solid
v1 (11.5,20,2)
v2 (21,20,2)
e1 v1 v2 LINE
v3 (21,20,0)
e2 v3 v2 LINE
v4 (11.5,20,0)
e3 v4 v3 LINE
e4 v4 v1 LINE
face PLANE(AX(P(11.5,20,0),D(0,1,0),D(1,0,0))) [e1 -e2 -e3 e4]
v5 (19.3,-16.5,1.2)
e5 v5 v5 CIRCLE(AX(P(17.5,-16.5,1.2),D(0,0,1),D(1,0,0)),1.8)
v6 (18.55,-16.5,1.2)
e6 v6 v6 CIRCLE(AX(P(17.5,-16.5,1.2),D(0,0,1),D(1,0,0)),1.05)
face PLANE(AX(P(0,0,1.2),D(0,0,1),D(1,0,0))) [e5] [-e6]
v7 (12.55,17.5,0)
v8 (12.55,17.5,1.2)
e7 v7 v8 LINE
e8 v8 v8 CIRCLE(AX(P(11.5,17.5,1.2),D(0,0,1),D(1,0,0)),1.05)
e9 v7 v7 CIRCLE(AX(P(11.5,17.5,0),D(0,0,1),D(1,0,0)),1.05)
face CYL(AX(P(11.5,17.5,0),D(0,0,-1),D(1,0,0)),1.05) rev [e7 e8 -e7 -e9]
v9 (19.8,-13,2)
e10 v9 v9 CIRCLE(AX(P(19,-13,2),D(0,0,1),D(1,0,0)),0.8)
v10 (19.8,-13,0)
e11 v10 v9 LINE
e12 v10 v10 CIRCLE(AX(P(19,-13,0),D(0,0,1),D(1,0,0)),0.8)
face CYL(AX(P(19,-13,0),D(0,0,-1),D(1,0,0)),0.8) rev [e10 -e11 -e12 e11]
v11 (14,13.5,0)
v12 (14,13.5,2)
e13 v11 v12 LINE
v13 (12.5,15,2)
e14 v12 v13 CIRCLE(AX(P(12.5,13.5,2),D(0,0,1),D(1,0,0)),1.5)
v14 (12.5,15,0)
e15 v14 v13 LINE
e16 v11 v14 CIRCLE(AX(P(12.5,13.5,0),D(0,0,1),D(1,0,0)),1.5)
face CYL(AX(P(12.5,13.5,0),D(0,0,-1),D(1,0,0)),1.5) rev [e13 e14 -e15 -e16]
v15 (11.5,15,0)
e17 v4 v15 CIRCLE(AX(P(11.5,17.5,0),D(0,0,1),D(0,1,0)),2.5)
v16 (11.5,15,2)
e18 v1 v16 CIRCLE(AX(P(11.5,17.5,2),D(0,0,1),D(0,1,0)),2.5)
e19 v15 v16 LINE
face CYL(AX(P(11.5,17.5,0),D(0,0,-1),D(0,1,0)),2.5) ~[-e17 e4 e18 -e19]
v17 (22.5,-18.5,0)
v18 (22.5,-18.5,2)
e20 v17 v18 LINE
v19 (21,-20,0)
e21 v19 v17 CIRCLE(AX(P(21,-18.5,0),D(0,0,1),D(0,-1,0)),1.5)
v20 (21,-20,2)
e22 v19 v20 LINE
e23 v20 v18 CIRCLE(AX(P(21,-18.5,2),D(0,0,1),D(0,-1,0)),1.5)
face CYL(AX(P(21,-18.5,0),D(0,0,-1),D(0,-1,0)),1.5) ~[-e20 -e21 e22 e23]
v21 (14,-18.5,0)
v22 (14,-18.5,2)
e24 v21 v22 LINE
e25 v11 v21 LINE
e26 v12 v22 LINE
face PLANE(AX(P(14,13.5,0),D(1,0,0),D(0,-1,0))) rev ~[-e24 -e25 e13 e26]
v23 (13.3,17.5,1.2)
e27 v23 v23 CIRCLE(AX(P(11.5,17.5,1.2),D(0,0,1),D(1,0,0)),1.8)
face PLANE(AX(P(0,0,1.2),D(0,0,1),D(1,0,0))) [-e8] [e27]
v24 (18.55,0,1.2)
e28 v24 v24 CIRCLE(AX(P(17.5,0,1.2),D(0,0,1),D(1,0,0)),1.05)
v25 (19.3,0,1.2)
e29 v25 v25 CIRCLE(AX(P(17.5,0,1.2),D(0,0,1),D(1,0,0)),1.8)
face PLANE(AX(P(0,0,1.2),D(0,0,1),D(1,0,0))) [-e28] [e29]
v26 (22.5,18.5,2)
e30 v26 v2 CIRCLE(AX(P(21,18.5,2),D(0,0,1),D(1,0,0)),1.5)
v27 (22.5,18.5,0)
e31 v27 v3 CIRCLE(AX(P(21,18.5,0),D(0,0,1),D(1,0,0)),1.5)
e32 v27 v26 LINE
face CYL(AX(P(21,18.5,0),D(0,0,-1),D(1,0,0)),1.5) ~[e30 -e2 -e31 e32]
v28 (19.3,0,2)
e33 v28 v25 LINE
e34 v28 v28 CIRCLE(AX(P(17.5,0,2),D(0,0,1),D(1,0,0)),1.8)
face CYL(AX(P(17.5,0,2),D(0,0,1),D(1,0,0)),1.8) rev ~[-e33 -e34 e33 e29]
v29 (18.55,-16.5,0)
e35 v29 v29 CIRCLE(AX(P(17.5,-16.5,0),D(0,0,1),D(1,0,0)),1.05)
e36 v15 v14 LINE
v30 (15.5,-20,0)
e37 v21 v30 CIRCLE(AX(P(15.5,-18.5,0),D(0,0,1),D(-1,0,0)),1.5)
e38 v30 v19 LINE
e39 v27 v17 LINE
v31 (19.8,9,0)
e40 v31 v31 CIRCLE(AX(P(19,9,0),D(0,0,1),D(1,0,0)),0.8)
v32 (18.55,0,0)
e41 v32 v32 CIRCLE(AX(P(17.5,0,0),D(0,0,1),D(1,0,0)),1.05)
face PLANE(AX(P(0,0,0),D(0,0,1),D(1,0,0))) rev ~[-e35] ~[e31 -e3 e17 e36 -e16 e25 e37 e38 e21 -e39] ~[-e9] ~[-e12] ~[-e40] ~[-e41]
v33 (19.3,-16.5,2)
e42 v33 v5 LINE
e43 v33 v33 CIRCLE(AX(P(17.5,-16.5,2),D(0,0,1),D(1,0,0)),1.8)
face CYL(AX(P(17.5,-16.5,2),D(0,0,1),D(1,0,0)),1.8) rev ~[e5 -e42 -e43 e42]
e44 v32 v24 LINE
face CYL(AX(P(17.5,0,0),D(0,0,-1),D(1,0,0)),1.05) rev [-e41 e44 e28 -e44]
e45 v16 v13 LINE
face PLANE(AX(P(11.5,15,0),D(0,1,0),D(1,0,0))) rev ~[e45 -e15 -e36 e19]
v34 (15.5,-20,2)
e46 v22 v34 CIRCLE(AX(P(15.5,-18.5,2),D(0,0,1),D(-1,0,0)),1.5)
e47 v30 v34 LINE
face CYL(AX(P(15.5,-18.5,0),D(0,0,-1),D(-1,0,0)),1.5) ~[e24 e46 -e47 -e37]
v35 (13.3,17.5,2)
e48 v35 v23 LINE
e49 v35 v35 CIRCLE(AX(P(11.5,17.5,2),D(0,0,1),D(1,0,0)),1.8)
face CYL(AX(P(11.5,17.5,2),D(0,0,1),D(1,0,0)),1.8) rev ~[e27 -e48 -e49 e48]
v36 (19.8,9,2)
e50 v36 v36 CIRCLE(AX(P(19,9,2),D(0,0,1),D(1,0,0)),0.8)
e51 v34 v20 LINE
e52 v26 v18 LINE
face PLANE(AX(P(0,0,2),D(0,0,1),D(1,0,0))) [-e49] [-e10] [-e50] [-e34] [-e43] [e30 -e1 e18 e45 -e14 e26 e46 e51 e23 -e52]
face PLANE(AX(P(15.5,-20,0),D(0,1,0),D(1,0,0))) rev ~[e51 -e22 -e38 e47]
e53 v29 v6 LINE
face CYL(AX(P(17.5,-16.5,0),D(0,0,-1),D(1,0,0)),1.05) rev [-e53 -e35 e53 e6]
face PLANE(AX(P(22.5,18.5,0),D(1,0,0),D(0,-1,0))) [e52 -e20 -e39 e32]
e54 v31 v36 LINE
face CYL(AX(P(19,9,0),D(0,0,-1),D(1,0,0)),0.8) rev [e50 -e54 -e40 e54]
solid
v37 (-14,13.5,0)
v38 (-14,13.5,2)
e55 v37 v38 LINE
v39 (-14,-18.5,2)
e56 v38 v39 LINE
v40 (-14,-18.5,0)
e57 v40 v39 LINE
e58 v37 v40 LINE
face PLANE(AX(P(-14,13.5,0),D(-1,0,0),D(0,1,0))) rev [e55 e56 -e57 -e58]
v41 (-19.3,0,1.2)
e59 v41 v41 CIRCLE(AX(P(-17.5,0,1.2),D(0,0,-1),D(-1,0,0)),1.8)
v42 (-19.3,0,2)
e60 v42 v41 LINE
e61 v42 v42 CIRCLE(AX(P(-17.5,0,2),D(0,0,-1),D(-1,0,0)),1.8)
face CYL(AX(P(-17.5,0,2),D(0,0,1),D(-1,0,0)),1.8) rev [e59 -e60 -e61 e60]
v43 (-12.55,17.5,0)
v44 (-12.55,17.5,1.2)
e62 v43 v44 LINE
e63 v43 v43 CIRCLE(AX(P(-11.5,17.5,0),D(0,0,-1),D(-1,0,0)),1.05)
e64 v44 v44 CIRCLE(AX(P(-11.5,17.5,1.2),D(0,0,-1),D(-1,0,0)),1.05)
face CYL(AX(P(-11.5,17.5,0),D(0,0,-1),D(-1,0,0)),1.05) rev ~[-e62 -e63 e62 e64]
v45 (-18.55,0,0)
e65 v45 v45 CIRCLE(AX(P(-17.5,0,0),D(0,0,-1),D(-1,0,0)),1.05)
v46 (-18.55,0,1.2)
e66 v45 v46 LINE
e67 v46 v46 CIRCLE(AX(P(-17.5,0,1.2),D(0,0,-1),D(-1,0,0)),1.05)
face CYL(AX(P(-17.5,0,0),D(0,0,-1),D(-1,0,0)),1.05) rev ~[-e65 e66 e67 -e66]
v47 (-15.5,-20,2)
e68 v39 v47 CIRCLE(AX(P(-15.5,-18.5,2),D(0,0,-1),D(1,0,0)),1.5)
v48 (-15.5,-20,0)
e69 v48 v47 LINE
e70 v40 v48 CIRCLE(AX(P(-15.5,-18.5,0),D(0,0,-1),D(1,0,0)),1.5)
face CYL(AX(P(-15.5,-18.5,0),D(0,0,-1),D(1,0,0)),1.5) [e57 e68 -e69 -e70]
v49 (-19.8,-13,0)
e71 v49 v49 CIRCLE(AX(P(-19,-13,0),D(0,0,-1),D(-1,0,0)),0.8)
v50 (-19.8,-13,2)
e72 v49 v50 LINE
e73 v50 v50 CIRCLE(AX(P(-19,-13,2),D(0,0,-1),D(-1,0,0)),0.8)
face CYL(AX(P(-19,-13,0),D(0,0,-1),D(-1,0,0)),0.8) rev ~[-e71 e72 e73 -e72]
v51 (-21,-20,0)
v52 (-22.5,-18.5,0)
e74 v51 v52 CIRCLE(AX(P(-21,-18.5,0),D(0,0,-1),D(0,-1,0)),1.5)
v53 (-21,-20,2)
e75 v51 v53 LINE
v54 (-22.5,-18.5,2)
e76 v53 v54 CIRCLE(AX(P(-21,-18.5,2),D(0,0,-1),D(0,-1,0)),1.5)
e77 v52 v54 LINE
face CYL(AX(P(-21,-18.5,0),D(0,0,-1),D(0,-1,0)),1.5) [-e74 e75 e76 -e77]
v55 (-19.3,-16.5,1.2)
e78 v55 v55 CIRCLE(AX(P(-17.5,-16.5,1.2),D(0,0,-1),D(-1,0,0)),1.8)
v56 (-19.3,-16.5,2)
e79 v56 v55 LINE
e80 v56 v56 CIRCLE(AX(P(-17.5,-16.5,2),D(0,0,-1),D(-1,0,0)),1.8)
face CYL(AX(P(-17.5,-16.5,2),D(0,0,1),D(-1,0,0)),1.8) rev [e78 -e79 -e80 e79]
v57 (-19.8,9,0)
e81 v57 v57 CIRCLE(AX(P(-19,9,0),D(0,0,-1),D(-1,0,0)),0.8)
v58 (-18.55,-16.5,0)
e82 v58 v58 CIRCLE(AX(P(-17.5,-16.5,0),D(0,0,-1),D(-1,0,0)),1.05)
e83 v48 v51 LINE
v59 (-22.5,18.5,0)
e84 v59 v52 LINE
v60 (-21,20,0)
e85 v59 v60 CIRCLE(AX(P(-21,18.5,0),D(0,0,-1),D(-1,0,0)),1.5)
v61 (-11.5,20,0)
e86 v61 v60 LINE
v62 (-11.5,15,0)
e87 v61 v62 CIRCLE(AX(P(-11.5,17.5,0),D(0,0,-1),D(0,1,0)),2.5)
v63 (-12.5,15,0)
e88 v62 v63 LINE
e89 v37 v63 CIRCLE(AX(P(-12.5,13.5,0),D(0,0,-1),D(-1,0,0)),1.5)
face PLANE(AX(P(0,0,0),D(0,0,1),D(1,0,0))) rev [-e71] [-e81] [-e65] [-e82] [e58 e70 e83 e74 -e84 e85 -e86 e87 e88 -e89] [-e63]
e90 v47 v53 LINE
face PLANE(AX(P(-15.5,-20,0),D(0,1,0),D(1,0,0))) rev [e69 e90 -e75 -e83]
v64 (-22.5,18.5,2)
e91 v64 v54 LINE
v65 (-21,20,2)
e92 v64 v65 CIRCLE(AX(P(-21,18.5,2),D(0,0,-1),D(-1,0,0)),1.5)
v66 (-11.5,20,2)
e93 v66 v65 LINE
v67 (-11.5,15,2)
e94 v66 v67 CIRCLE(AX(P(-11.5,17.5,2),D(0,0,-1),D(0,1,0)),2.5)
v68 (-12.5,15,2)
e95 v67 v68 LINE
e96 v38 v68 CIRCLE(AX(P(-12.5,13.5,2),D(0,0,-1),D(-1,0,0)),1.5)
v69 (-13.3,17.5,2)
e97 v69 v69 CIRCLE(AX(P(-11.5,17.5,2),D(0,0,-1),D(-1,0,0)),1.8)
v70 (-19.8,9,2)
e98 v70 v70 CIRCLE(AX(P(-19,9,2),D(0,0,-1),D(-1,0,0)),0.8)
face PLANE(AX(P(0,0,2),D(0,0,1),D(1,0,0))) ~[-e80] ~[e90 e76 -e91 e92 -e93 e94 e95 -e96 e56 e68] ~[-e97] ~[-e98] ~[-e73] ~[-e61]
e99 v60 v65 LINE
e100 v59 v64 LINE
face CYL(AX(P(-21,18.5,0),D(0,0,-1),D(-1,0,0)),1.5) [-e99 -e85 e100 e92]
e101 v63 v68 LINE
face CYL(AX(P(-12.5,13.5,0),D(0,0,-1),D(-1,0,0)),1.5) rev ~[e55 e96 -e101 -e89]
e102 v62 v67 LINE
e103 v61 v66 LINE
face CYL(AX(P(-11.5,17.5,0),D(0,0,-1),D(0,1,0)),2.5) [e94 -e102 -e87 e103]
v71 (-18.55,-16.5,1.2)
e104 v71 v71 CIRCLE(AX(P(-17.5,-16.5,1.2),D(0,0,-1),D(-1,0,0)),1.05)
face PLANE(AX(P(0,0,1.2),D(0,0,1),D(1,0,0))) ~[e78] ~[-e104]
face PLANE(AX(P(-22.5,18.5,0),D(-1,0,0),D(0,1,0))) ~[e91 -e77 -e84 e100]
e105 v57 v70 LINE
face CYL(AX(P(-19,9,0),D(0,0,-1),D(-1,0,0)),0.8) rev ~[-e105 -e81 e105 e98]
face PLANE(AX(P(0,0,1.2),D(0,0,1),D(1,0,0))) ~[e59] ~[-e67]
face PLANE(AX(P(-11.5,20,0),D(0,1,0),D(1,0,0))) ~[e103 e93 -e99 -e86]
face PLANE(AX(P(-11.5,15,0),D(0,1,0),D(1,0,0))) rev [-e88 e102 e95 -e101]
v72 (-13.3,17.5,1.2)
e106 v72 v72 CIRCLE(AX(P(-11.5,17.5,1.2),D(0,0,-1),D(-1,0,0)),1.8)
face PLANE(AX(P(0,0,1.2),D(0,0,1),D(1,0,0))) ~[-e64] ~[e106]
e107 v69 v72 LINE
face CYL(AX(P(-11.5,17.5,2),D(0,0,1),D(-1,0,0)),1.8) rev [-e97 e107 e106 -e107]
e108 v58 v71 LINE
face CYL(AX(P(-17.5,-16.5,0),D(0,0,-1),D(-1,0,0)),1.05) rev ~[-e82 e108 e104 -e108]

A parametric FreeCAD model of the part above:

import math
import FreeCAD as App
import Part
import Sketcher
from FreeCAD import Vector
Q = App.Units.Quantity

doc = App.newDocument("Part")
params = doc.addObject("Spreadsheet::Sheet", "Params")
for row, (alias, value) in enumerate([
    ("sketch1_diameter", "2.1 mm"),
    ("sketch1_diameter2", "1.6 mm"),
    ("sketch1_radius", "1.5 mm"),
    ("sketch1_radius2", "2.5 mm"),
    ("pad1_length", "2 mm"),
    ("sketch2_diameter", "3.6 mm"),
    ("sketch2_diameter2", "2.1 mm"),
    ("pocket1_length", "0.8 mm"),
], start=1):
    params.set(f"A{row}", alias)
    params.set(f"B{row}", "=" + value)
    params.setAlias(f"B{row}", alias)

body = doc.addObject("PartDesign::Body", "Body")
body.AllowCompound = True

# Sketch on XY plane
sketch1 = doc.addObject("Sketcher::SketchObject", "Sketch")
body.addObject(sketch1)
sketch1.AttachmentSupport = (doc.XY_Plane, [""])
sketch1.MapMode = "FlatFace"
sketch1.addGeometry(Part.LineSegment(Vector(22.5, -18.5, 0), Vector(22.5, 18.5, 0)), False)
sketch1.addGeometry(Part.ArcOfCircle(Part.Circle(Vector(21, 18.5, 0), Vector(0, 0, 1), 1.5), math.radians(0), math.radians(90)), False)
sketch1.addGeometry(Part.LineSegment(Vector(21, 20, 0), Vector(11.5, 20, 0)), False)
sketch1.addGeometry(Part.ArcOfCircle(Part.Circle(Vector(11.5, 17.5, 0), Vector(0, 0, 1), 2.5), math.radians(90), math.radians(270)), False)
sketch1.addGeometry(Part.LineSegment(Vector(11.5, 15, 0), Vector(12.5, 15, 0)), False)
sketch1.addGeometry(Part.ArcOfCircle(Part.Circle(Vector(12.5, 13.5, 0), Vector(0, 0, 1), 1.5), math.radians(0), math.radians(90)), False)
sketch1.addGeometry(Part.LineSegment(Vector(14, 13.5, 0), Vector(14, -18.5, 0)), False)
sketch1.addGeometry(Part.ArcOfCircle(Part.Circle(Vector(15.5, -18.5, 0), Vector(0, 0, 1), 1.5), math.radians(180), math.radians(270)), False)
sketch1.addGeometry(Part.LineSegment(Vector(15.5, -20, 0), Vector(21, -20, 0)), False)
sketch1.addGeometry(Part.ArcOfCircle(Part.Circle(Vector(21, -18.5, 0), Vector(0, 0, 1), 1.5), math.radians(-90), math.radians(0)), False)
sketch1.addGeometry(Part.Circle(Vector(17.5, -16.5, 0), Vector(0, 0, 1), 1.05), False)
sketch1.addGeometry(Part.Circle(Vector(19, -13, 0), Vector(0, 0, 1), 0.8), False)
sketch1.addGeometry(Part.Circle(Vector(11.5, 17.5, 0), Vector(0, 0, 1), 1.05), False)
sketch1.addGeometry(Part.Circle(Vector(17.5, 0, 0), Vector(0, 0, 1), 1.05), False)
sketch1.addGeometry(Part.Circle(Vector(19, 9, 0), Vector(0, 0, 1), 0.8), False)
sketch1.addConstraint(Sketcher.Constraint("Tangent", 0, 2, 1, 1))
sketch1.addConstraint(Sketcher.Constraint("Tangent", 1, 2, 2, 1))
sketch1.addConstraint(Sketcher.Constraint("Tangent", 2, 2, 3, 1))
sketch1.addConstraint(Sketcher.Constraint("Tangent", 3, 2, 4, 1))
sketch1.addConstraint(Sketcher.Constraint("Tangent", 4, 2, 5, 2))
sketch1.addConstraint(Sketcher.Constraint("Tangent", 5, 1, 6, 1))
sketch1.addConstraint(Sketcher.Constraint("Tangent", 6, 2, 7, 1))
sketch1.addConstraint(Sketcher.Constraint("Tangent", 7, 2, 8, 1))
sketch1.addConstraint(Sketcher.Constraint("Tangent", 8, 2, 9, 1))
sketch1.addConstraint(Sketcher.Constraint("Tangent", 9, 2, 0, 1))
sketch1.addConstraint(Sketcher.Constraint("Vertical", 0))
sketch1.addConstraint(Sketcher.Constraint("Horizontal", 2))
sketch1.addConstraint(Sketcher.Constraint("Horizontal", 4))
sketch1.addConstraint(Sketcher.Constraint("Vertical", 6))
sketch1.addConstraint(Sketcher.Constraint("Horizontal", 8))
sketch1.addConstraint(Sketcher.Constraint("Coincident", 12, 3, 3, 3))
sketch1.addConstraint(Sketcher.Constraint("Equal", 1, 5))
sketch1.addConstraint(Sketcher.Constraint("Equal", 5, 7))
sketch1.addConstraint(Sketcher.Constraint("Equal", 7, 9))
sketch1.addConstraint(Sketcher.Constraint("Equal", 10, 12))
sketch1.addConstraint(Sketcher.Constraint("Equal", 12, 13))
sketch1.addConstraint(Sketcher.Constraint("Equal", 11, 14))
sketch1.addConstraint(Sketcher.Constraint("PointOnObject", 13, 3, -1))
sketch1.addConstraint(Sketcher.Constraint("Vertical", 10, 3, 13, 3))
sketch1.addConstraint(Sketcher.Constraint("Vertical", 11, 3, 14, 3))
sketch1.addConstraint(Sketcher.Constraint("Diameter", 10, Q("2.1 mm")))
sketch1.addConstraint(Sketcher.Constraint("Diameter", 11, Q("1.6 mm")))
sketch1.addConstraint(Sketcher.Constraint("Radius", 1, Q("1.5 mm")))
sketch1.addConstraint(Sketcher.Constraint("Radius", 3, Q("2.5 mm")))
sketch1.addConstraint(Sketcher.Constraint("DistanceY", -1, 1, 14, 3, Q("9 mm")))
sketch1.addConstraint(Sketcher.Constraint("DistanceX", 3, 3, 7, 3, Q("4 mm")))
sketch1.addConstraint(Sketcher.Constraint("DistanceY", 10, 3, 1, 3, Q("35 mm")))
sketch1.addConstraint(Sketcher.Constraint("DistanceX", 10, 3, 9, 3, Q("3.5 mm")))
sketch1.addConstraint(Sketcher.Constraint("DistanceX", 10, 3, 11, 3, Q("1.5 mm")))
sketch1.addConstraint(Sketcher.Constraint("DistanceY", 10, 3, 11, 3, Q("3.5 mm")))
sketch1.addConstraint(Sketcher.Constraint("DistanceX", 7, 3, 11, 3, Q("3.5 mm")))
sketch1.addConstraint(Sketcher.Constraint("DistanceY", 7, 2, 10, 3, Q("3.5 mm")))
sketch1.addConstraint(Sketcher.Constraint("DistanceX", -1, 1, 1, 3, Q("21 mm")))
sketch1.addConstraint(Sketcher.Constraint("DistanceY", 11, 3, -1, 1, Q("13 mm")))
sketch1.setExpression("Constraints[25]", "Params.sketch1_diameter")
sketch1.setExpression("Constraints[26]", "Params.sketch1_diameter2")
sketch1.setExpression("Constraints[27]", "Params.sketch1_radius")
sketch1.setExpression("Constraints[28]", "Params.sketch1_radius2")
pad1 = doc.addObject("PartDesign::Pad", "Pad")
body.addObject(pad1)
pad1.Profile = sketch1
pad1.setExpression("Length", "Params.pad1_length")

# Sketch on XY plane
sketch2 = doc.addObject("Sketcher::SketchObject", "Sketch001")
body.addObject(sketch2)
sketch2.AttachmentSupport = (doc.XY_Plane, [""])
sketch2.MapMode = "FlatFace"
sketch2.AttachmentOffset = App.Placement(Vector(0, 0, 2), App.Rotation())
sketch2.addGeometry(Part.Circle(Vector(17.5, 0, 0), Vector(0, 0, 1), 1.8), False)
sketch2.addGeometry(Part.Circle(Vector(17.5, 0, 0), Vector(0, 0, 1), 1.05), False)
sketch2.addGeometry(Part.Circle(Vector(11.5, 17.5, 0), Vector(0, 0, 1), 1.8), False)
sketch2.addGeometry(Part.Circle(Vector(11.5, 17.5, 0), Vector(0, 0, 1), 1.05), False)
sketch2.addGeometry(Part.Circle(Vector(17.5, -16.5, 0), Vector(0, 0, 1), 1.8), False)
sketch2.addGeometry(Part.Circle(Vector(17.5, -16.5, 0), Vector(0, 0, 1), 1.05), False)
sketch2.addConstraint(Sketcher.Constraint("Coincident", 1, 3, 0, 3))
sketch2.addConstraint(Sketcher.Constraint("Coincident", 3, 3, 2, 3))
sketch2.addConstraint(Sketcher.Constraint("Coincident", 5, 3, 4, 3))
sketch2.addConstraint(Sketcher.Constraint("Equal", 0, 2))
sketch2.addConstraint(Sketcher.Constraint("Equal", 1, 3))
sketch2.addConstraint(Sketcher.Constraint("Equal", 2, 4))
sketch2.addConstraint(Sketcher.Constraint("Equal", 3, 5))
sketch2.addConstraint(Sketcher.Constraint("PointOnObject", 0, 3, -1))
sketch2.addConstraint(Sketcher.Constraint("Vertical", 1, 3, 4, 3))
sketch2.addConstraint(Sketcher.Constraint("Diameter", 0, Q("3.6 mm")))
sketch2.addConstraint(Sketcher.Constraint("Diameter", 1, Q("2.1 mm")))
sketch2.addConstraint(Sketcher.Constraint("DistanceX", 2, 3, 0, 3, Q("6 mm")))
sketch2.addConstraint(Sketcher.Constraint("DistanceY", 4, 3, 2, 3, Q("34 mm")))
sketch2.addConstraint(Sketcher.Constraint("DistanceX", -1, 1, 0, 3, Q("17.5 mm")))
sketch2.addConstraint(Sketcher.Constraint("DistanceY", -1, 1, 2, 3, Q("17.5 mm")))
sketch2.setExpression("Constraints[9]", "Params.sketch2_diameter")
sketch2.setExpression("Constraints[10]", "Params.sketch2_diameter2")
pocket1 = doc.addObject("PartDesign::Pocket", "Pocket")
body.addObject(pocket1)
pocket1.Profile = sketch2
pocket1.setExpression("Length", "Params.pocket1_length")
doc.recompute()

mirrored = doc.addObject("PartDesign::Mirrored", "Mirrored")
body.addObject(mirrored)
mirrored.Originals = [pad1, pocket1]
mirrored.MirrorPlane = (doc.YZ_Plane, [""])
body.Tip = mirrored

doc.recompute()
